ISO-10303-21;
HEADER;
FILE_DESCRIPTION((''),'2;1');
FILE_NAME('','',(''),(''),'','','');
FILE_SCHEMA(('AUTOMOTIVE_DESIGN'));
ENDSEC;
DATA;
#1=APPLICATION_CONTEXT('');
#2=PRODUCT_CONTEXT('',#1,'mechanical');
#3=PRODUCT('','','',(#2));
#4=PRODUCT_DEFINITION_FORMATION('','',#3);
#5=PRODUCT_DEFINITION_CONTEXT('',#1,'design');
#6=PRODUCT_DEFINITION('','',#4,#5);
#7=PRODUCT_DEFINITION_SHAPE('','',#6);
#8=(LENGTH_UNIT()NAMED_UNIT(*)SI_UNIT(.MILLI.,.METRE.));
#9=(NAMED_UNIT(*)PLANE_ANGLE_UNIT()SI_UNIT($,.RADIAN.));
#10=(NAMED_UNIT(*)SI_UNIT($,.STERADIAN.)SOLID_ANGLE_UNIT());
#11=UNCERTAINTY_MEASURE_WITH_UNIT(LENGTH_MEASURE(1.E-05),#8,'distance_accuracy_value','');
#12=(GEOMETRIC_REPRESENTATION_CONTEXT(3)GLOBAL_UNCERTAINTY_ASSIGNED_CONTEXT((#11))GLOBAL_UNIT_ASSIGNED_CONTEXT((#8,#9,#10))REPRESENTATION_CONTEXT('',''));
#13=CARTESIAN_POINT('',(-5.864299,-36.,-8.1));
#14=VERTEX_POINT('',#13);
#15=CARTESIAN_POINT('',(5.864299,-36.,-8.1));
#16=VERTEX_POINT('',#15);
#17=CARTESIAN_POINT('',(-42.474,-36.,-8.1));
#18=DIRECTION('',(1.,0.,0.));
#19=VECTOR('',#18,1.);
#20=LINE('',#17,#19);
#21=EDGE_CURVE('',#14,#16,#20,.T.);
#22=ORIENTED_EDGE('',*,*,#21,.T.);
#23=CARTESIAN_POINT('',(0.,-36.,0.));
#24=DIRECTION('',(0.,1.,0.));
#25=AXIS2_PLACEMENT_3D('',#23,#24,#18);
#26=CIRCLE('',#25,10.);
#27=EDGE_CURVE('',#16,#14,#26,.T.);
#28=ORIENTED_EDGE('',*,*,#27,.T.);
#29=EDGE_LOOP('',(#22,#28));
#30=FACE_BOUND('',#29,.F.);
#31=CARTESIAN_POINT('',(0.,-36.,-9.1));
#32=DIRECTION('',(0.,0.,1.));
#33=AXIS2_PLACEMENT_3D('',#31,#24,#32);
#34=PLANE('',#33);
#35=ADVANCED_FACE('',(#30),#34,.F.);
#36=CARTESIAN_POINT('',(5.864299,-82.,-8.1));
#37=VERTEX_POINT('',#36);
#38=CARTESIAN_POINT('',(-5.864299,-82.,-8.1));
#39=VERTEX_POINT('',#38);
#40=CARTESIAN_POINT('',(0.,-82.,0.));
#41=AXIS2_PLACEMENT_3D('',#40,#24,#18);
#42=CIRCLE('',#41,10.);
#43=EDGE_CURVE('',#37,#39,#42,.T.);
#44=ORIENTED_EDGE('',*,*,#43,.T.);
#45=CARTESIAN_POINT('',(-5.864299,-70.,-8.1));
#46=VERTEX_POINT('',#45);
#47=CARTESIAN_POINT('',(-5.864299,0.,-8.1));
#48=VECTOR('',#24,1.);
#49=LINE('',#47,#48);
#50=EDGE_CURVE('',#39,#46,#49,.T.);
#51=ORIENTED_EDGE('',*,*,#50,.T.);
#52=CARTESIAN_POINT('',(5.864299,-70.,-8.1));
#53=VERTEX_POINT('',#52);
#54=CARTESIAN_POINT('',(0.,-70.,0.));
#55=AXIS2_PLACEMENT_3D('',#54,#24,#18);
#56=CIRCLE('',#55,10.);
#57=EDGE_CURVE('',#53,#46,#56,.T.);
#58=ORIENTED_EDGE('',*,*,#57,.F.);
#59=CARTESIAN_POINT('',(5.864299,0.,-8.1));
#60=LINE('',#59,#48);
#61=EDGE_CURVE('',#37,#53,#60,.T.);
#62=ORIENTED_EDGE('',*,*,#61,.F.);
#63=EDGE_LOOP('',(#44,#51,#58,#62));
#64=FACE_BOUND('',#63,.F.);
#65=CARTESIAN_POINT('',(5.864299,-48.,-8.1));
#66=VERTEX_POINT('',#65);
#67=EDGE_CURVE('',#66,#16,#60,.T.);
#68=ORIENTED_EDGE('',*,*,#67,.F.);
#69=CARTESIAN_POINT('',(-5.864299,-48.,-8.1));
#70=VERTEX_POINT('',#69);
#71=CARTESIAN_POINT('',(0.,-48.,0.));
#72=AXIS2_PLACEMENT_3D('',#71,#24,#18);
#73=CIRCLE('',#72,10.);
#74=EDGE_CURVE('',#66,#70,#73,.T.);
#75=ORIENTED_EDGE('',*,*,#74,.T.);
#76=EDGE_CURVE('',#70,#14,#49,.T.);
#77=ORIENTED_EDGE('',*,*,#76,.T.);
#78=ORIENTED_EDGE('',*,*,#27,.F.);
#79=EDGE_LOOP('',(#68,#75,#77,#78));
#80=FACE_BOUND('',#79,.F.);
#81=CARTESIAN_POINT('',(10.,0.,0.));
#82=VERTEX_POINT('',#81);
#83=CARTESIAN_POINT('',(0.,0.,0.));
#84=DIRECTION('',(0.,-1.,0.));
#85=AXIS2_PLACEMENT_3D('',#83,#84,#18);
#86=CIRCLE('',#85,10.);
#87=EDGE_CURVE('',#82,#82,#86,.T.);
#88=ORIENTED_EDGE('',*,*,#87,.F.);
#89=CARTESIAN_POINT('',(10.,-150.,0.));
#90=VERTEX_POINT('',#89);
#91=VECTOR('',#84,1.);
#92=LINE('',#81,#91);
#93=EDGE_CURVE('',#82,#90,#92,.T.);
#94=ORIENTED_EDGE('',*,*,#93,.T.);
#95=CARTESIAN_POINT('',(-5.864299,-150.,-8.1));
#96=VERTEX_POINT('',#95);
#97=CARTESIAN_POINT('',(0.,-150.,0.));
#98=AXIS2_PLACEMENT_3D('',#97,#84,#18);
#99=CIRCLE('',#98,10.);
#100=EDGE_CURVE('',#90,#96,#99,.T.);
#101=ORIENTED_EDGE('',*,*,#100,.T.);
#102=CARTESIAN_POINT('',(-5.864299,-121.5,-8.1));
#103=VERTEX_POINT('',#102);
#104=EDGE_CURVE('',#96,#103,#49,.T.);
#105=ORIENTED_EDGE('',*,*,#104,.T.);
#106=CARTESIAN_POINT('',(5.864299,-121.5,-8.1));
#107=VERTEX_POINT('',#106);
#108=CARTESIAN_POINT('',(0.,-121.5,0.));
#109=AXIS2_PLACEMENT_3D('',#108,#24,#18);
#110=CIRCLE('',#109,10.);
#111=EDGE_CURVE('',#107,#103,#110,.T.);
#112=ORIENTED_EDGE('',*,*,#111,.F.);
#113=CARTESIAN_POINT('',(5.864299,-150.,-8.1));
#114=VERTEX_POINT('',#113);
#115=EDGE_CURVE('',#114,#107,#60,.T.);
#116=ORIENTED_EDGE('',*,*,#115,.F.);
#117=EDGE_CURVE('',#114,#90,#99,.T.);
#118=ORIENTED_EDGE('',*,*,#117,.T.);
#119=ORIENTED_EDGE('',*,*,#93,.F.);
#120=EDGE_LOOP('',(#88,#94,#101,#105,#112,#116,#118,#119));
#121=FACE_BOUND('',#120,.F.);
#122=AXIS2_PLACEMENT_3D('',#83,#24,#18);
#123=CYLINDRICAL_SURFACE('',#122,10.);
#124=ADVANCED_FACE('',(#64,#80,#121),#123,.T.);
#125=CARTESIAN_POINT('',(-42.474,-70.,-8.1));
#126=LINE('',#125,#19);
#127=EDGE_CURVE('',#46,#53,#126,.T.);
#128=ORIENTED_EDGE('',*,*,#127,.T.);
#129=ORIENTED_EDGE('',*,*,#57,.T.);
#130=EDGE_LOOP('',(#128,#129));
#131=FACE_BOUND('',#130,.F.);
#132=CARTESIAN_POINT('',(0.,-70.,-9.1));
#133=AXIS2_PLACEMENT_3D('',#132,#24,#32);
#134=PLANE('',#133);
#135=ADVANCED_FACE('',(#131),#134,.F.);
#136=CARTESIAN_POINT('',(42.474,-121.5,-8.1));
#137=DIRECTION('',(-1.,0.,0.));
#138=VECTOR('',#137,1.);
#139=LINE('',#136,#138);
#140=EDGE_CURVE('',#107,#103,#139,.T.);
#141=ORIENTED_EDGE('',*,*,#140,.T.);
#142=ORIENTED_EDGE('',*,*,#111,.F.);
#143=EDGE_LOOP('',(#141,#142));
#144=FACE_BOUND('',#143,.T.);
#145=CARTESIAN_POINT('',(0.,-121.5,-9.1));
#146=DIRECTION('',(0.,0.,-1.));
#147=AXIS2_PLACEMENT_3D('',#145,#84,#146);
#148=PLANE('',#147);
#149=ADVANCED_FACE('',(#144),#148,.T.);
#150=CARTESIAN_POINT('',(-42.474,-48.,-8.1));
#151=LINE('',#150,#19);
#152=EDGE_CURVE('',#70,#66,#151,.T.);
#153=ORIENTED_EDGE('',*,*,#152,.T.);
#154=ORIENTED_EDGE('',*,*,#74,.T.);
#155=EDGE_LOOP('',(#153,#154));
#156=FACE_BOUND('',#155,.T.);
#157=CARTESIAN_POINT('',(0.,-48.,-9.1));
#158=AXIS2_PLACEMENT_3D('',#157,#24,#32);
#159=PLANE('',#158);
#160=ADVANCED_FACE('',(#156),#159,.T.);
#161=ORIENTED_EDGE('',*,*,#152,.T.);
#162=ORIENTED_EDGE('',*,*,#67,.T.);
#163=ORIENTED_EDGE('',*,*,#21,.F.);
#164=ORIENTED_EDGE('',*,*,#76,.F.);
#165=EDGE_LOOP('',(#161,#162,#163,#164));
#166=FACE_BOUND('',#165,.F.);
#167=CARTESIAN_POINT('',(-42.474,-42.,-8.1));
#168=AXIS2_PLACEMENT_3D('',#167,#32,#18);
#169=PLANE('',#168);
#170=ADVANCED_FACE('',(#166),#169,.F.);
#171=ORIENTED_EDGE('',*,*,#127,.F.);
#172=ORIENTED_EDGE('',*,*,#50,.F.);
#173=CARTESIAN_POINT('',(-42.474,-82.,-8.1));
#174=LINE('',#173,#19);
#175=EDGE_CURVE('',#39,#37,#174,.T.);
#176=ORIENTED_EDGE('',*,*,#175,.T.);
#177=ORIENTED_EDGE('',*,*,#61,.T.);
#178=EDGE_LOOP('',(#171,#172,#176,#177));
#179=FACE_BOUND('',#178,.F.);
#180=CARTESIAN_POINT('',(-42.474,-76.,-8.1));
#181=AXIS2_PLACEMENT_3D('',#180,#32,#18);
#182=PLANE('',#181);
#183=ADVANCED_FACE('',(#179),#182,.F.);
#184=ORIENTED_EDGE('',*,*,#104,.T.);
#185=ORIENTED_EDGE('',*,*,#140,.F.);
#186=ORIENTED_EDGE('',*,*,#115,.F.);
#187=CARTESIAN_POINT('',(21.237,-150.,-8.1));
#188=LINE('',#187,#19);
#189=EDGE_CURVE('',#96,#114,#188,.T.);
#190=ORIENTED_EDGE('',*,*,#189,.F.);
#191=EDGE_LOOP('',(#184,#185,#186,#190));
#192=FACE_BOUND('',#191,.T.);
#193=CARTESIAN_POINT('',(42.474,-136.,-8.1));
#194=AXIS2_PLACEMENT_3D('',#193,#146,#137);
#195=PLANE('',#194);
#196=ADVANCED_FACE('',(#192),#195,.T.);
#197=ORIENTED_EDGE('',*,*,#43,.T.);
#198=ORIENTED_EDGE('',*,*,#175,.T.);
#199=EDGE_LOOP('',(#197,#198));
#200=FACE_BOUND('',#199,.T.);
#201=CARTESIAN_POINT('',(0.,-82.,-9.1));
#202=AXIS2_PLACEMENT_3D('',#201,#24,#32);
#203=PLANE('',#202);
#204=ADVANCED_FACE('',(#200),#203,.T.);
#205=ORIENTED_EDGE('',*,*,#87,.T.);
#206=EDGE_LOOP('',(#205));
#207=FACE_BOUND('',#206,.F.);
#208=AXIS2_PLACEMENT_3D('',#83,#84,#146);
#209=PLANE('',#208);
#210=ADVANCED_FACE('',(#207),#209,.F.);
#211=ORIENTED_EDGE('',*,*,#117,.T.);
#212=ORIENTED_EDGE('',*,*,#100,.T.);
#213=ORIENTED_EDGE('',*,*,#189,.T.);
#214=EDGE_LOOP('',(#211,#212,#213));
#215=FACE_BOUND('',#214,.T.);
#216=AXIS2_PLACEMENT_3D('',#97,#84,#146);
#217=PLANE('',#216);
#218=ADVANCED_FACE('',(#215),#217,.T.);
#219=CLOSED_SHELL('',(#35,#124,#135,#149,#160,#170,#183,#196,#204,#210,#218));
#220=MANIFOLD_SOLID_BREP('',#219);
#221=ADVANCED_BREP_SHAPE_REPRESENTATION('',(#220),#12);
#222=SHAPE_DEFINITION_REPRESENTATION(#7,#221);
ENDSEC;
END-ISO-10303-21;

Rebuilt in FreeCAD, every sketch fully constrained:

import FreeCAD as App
import Part
import Sketcher
from FreeCAD import Vector

doc = App.newDocument("Part")
body = doc.addObject("PartDesign::Body", "Body")

sketch1 = body.newObject("Sketcher::SketchObject", "Sketch")
sketch1.AttachmentSupport = (doc.getObject("XZ_Plane"), [""])
sketch1.MapMode = "FlatFace"
sketch1.addGeometry(Part.Circle(Vector(0, 0, 0), Vector(0, 0, 1), 10), False)
sketch1.addConstraint([
    Sketcher.Constraint("Coincident", 0, 3, -1, 1),
    Sketcher.Constraint("Diameter", 0, 20.0),
])
pad1 = body.newObject("PartDesign::Pad", "Pad")
pad1.Profile = sketch1
pad1.Length = 150

sketch2 = body.newObject("Sketcher::SketchObject", "Sketch001")
sketch2.AttachmentSupport = (doc.getObject("XZ_Plane"), [""])
sketch2.MapMode = "FlatFace"
sketch2.AttachmentOffset = App.Placement(Vector(0, 0, 136), App.Rotation())
sketch2.addGeometry([
    Part.LineSegment(Vector(-42.5, -8.1, 0), Vector(-42.5, -10.1, 0)),
    Part.LineSegment(Vector(-42.5, -10.1, 0), Vector(42.5, -10.1, 0)),
    Part.LineSegment(Vector(42.5, -10.1, 0), Vector(42.5, -8.1, 0)),
    Part.LineSegment(Vector(42.5, -8.1, 0), Vector(-42.5, -8.1, 0)),
], False)
sketch2.addConstraint([
    Sketcher.Constraint("Coincident", 0, 2, 1, 1),
    Sketcher.Constraint("Coincident", 1, 2, 2, 1),
    Sketcher.Constraint("Coincident", 2, 2, 3, 1),
    Sketcher.Constraint("Coincident", 3, 2, 0, 1),
    Sketcher.Constraint("Vertical", 0),
    Sketcher.Constraint("Horizontal", 1),
    Sketcher.Constraint("Vertical", 2),
    Sketcher.Constraint("Horizontal", 3),
    Sketcher.Constraint("DistanceY", 0, 2, 0, 1, 2.0),
    Sketcher.Constraint("DistanceY", 0, 2, -1, 1, 10.1),
    Sketcher.Constraint("DistanceX", 1, 1, 1, 2, 84.948),
    Sketcher.Constraint("DistanceX", 0, 2, -1, 1, 42.474),
])
pocket1 = body.newObject("PartDesign::Pocket", "Pocket")
pocket1.Profile = sketch2
pocket1.Length = 29
pocket1.Midplane = True

sketch3 = body.newObject("Sketcher::SketchObject", "Sketch002")
sketch3.AttachmentSupport = (doc.getObject("XZ_Plane"), [""])
sketch3.MapMode = "FlatFace"
sketch3.AttachmentOffset = App.Placement(Vector(0, 0, 76), App.Rotation())
sketch3.addGeometry([
    Part.LineSegment(Vector(-42.5, -10.1, 0), Vector(42.5, -10.1, 0)),
    Part.LineSegment(Vector(42.5, -10.1, 0), Vector(42.5, -8.1, 0)),
    Part.LineSegment(Vector(42.5, -8.1, 0), Vector(-42.5, -8.1, 0)),
    Part.LineSegment(Vector(-42.5, -8.1, 0), Vector(-42.5, -10.1, 0)),
], False)
sketch3.addConstraint([
    Sketcher.Constraint("Coincident", 0, 2, 1, 1),
    Sketcher.Constraint("Coincident", 1, 2, 2, 1),
    Sketcher.Constraint("Coincident", 2, 2, 3, 1),
    Sketcher.Constraint("Coincident", 3, 2, 0, 1),
    Sketcher.Constraint("Horizontal", 0),
    Sketcher.Constraint("Vertical", 1),
    Sketcher.Constraint("Horizontal", 2),
    Sketcher.Constraint("Vertical", 3),
    Sketcher.Constraint("DistanceY", 1, 1, 1, 2, 2.0),
    Sketcher.Constraint("DistanceY", 0, 2, -1, 1, 10.1),
    Sketcher.Constraint("DistanceX", 0, 1, 0, 2, 84.948),
    Sketcher.Constraint("DistanceX", -1, 1, 0, 2, 42.474),
])
pocket2 = body.newObject("PartDesign::Pocket", "Pocket001")
pocket2.Profile = sketch3
pocket2.Length = 12
pocket2.Midplane = True

sketch4 = body.newObject("Sketcher::SketchObject", "Sketch003")
sketch4.AttachmentSupport = (doc.getObject("XZ_Plane"), [""])
sketch4.MapMode = "FlatFace"
sketch4.AttachmentOffset = App.Placement(Vector(0, 0, 42), App.Rotation())
sketch4.addGeometry([
    Part.LineSegment(Vector(-42.5, -10.1, 0), Vector(42.5, -10.1, 0)),
    Part.LineSegment(Vector(42.5, -10.1, 0), Vector(42.5, -8.1, 0)),
    Part.LineSegment(Vector(42.5, -8.1, 0), Vector(-42.5, -8.1, 0)),
    Part.LineSegment(Vector(-42.5, -8.1, 0), Vector(-42.5, -10.1, 0)),
], False)
sketch4.addConstraint([
    Sketcher.Constraint("Coincident", 0, 2, 1, 1),
    Sketcher.Constraint("Coincident", 1, 2, 2, 1),
    Sketcher.Constraint("Coincident", 2, 2, 3, 1),
    Sketcher.Constraint("Coincident", 3, 2, 0, 1),
    Sketcher.Constraint("Horizontal", 0),
    Sketcher.Constraint("Vertical", 1),
    Sketcher.Constraint("Horizontal", 2),
    Sketcher.Constraint("Vertical", 3),
    Sketcher.Constraint("DistanceY", 1, 1, 1, 2, 2.0),
    Sketcher.Constraint("DistanceY", 0, 2, -1, 1, 10.1),
    Sketcher.Constraint("DistanceX", 0, 1, 0, 2, 84.948),
    Sketcher.Constraint("DistanceX", -1, 1, 0, 2, 42.474),
])
pocket3 = body.newObject("PartDesign::Pocket", "Pocket002")
pocket3.Profile = sketch4
pocket3.Length = 12
pocket3.Midplane = True

doc.recompute()
